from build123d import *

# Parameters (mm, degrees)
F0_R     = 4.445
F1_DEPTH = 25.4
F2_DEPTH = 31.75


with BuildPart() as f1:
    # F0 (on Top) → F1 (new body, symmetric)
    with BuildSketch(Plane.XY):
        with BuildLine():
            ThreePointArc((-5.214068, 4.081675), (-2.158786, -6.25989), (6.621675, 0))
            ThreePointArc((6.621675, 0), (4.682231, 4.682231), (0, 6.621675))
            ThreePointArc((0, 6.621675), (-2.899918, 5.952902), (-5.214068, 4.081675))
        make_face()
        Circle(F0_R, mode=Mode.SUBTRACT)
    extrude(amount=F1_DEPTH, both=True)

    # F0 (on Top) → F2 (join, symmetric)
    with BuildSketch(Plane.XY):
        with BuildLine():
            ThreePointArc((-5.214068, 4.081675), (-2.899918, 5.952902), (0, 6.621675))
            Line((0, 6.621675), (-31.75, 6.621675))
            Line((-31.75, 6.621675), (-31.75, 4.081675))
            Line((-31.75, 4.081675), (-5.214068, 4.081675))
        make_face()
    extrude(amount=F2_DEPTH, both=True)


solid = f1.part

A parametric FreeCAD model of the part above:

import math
import FreeCAD as App
import Part
import Sketcher
from FreeCAD import Vector
Q = App.Units.Quantity

doc = App.newDocument("Part")
body = doc.addObject("PartDesign::Body", "Body")

sketch1 = doc.addObject("Sketcher::SketchObject", "Sketch")
body.addObject(sketch1)
sketch1.AttachmentSupport = (doc.XY_Plane, [""])
sketch1.MapMode = "FlatFace"
sketch1.addGeometry([
    Part.ArcOfCircle(Part.Circle(Vector(0, 0, 0), Vector(0, 0, 1), 6.6), math.radians(142), math.radians(360)),
    Part.ArcOfCircle(Part.Circle(Vector(0, 0, 0), Vector(0, 0, 1), 6.6), math.radians(0), math.radians(90)),
    Part.ArcOfCircle(Part.Circle(Vector(0, 0, 0), Vector(0, 0, 1), 6.6), math.radians(90), math.radians(142)),
    Part.Circle(Vector(0, 0, 0), Vector(0, 0, 1), 4.4),
], False)
sketch1.addConstraint([
    Sketcher.Constraint("Tangent", 0, 2, 1, 1),
    Sketcher.Constraint("Tangent", 1, 2, 2, 1),
    Sketcher.Constraint("Tangent", 2, 2, 0, 1),
    Sketcher.Constraint("Coincident", 0, 3, -1, 1),
    Sketcher.Constraint("Coincident", 3, 3, -1, 1),
    Sketcher.Constraint("PointOnObject", 0, 2, -1),
    Sketcher.Constraint("PointOnObject", 1, 2, -2),
    Sketcher.Constraint("Diameter", 3, Q("0.35 in")),
    Sketcher.Constraint("DistanceY", 2, 2, 1, 2, Q("0.1 in")),
    Sketcher.Constraint("Radius", 0, 6.621675),
])
pad1 = doc.addObject("PartDesign::Pad", "Pad")
body.addObject(pad1)
pad1.Profile = sketch1
pad1.Length = Q("2 in")
pad1.Midplane = True

sketch2 = doc.addObject("Sketcher::SketchObject", "Sketch001")
body.addObject(sketch2)
sketch2.AttachmentSupport = (doc.XY_Plane, [""])
sketch2.MapMode = "FlatFace"
sketch2.addGeometry([
    Part.ArcOfCircle(Part.Circle(Vector(0, 0, 0), Vector(0, 0, 1), 6.6), math.radians(90), math.radians(142)),
    Part.LineSegment(Vector(0, 6.6, 0), Vector(-31.8, 6.6, 0)),
    Part.LineSegment(Vector(-31.8, 6.6, 0), Vector(-31.8, 4.1, 0)),
    Part.LineSegment(Vector(-31.8, 4.1, 0), Vector(-5.2, 4.1, 0)),
], False)
sketch2.addConstraint([
    Sketcher.Constraint("Tangent", 0, 1, 1, 1),
    Sketcher.Constraint("Coincident", 1, 2, 2, 1),
    Sketcher.Constraint("Coincident", 2, 2, 3, 1),
    Sketcher.Constraint("Coincident", 3, 2, 0, 2),
    Sketcher.Constraint("Horizontal", 1),
    Sketcher.Constraint("Vertical", 2),
    Sketcher.Constraint("Horizontal", 3),
    Sketcher.Constraint("Coincident", 0, 3, -1, 1),
    Sketcher.Constraint("DistanceY", 2, 2, 2, 1, Q("0.1 in")),
    Sketcher.Constraint("DistanceX", 1, 2, 1, 1, Q("1.25 in")),
    Sketcher.Constraint("Radius", 0, 6.621682),
])
pad2 = doc.addObject("PartDesign::Pad", "Pad001")
body.addObject(pad2)
pad2.Profile = sketch2
pad2.Length = Q("2.5 in")
pad2.Midplane = True

doc.recompute()
